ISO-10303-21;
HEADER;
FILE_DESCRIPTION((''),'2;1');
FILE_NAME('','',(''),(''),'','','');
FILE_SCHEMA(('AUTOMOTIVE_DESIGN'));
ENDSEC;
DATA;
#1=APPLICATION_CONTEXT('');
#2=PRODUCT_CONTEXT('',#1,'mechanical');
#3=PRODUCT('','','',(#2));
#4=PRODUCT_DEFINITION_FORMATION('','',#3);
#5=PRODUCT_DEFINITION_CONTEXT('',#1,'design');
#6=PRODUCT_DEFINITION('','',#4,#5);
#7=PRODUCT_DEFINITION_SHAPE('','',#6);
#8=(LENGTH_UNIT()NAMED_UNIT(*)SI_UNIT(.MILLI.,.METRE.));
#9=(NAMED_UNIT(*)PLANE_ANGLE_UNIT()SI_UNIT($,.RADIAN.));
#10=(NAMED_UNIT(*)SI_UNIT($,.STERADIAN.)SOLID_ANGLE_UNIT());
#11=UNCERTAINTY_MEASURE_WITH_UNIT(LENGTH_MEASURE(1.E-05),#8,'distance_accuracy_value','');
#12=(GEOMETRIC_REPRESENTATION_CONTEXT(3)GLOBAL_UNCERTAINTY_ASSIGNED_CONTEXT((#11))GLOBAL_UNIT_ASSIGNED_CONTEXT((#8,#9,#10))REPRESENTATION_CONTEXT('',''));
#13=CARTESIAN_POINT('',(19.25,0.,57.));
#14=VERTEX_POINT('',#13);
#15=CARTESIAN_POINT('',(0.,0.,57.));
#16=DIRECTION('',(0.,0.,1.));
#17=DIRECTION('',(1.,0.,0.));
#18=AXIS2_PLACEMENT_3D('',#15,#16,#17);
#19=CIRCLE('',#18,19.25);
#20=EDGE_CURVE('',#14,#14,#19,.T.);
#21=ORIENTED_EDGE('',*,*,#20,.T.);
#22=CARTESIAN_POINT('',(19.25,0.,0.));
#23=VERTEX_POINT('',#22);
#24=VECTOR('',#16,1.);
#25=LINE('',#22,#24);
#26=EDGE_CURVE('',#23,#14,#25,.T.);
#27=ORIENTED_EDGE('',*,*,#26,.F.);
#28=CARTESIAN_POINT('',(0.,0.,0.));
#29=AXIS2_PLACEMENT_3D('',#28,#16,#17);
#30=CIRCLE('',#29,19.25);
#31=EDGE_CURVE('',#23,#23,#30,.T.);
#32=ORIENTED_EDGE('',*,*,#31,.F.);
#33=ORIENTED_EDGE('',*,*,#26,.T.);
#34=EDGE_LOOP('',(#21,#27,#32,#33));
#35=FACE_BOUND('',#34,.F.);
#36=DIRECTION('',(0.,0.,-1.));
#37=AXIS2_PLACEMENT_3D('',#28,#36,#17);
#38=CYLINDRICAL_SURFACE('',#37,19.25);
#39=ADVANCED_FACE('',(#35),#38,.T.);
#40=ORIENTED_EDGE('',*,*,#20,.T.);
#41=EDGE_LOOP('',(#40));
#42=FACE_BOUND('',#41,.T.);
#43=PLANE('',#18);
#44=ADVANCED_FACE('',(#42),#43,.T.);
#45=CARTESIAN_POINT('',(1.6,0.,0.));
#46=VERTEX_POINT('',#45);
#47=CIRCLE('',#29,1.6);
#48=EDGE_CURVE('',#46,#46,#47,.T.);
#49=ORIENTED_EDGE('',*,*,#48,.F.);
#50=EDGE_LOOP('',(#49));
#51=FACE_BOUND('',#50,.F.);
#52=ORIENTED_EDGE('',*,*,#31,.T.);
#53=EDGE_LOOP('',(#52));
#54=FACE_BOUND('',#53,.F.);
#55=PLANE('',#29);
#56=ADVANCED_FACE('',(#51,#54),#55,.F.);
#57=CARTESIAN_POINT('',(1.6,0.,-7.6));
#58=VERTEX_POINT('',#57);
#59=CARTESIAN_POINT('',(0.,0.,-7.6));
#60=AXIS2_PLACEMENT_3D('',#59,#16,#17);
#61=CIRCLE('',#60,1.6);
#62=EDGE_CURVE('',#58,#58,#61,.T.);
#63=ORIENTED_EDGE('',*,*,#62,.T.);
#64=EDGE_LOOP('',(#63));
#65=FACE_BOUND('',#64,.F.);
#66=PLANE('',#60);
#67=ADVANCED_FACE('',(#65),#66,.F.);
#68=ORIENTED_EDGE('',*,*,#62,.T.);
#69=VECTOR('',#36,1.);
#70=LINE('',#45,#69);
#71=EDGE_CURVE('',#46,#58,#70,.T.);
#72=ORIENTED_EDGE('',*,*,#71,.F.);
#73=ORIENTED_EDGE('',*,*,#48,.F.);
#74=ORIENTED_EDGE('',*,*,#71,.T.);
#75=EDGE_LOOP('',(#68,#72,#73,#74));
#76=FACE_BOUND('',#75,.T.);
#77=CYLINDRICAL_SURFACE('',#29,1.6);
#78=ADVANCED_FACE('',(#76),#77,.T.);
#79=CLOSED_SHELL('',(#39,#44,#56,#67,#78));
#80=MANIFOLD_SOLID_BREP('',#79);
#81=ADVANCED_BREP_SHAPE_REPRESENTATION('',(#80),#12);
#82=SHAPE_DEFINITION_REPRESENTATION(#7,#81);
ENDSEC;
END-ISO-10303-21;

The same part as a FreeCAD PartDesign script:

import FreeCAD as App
import Part
import Sketcher
from FreeCAD import Vector

doc = App.newDocument("Part")
body = doc.addObject("PartDesign::Body", "Body")

sketch1 = body.newObject("Sketcher::SketchObject", "Sketch")
sketch1.AttachmentSupport = (doc.getObject("XY_Plane"), [""])
sketch1.MapMode = "FlatFace"
sketch1.addGeometry(Part.Circle(Vector(0, 0, 0), Vector(0, 0, 1), 19), False)
sketch1.addConstraint([
    Sketcher.Constraint("Coincident", 0, 3, -1, 1),
    Sketcher.Constraint("Diameter", 0, 38.5),
])
pad1 = body.newObject("PartDesign::Pad", "Pad")
pad1.Profile = sketch1
pad1.Length = 57

sketch2 = body.newObject("Sketcher::SketchObject", "Sketch001")
sketch2.AttachmentSupport = (doc.getObject("XY_Plane"), [""])
sketch2.MapMode = "FlatFace"
sketch2.addGeometry(Part.Circle(Vector(0, 0, 0), Vector(0, 0, 1), 1.6), False)
sketch2.addConstraint([
    Sketcher.Constraint("Coincident", 0, 3, -1, 1),
    Sketcher.Constraint("Diameter", 0, 3.2),
])
pad2 = body.newObject("PartDesign::Pad", "Pad001")
pad2.Profile = sketch2
pad2.Length = 7.6
pad2.Reversed = True

doc.recompute()
